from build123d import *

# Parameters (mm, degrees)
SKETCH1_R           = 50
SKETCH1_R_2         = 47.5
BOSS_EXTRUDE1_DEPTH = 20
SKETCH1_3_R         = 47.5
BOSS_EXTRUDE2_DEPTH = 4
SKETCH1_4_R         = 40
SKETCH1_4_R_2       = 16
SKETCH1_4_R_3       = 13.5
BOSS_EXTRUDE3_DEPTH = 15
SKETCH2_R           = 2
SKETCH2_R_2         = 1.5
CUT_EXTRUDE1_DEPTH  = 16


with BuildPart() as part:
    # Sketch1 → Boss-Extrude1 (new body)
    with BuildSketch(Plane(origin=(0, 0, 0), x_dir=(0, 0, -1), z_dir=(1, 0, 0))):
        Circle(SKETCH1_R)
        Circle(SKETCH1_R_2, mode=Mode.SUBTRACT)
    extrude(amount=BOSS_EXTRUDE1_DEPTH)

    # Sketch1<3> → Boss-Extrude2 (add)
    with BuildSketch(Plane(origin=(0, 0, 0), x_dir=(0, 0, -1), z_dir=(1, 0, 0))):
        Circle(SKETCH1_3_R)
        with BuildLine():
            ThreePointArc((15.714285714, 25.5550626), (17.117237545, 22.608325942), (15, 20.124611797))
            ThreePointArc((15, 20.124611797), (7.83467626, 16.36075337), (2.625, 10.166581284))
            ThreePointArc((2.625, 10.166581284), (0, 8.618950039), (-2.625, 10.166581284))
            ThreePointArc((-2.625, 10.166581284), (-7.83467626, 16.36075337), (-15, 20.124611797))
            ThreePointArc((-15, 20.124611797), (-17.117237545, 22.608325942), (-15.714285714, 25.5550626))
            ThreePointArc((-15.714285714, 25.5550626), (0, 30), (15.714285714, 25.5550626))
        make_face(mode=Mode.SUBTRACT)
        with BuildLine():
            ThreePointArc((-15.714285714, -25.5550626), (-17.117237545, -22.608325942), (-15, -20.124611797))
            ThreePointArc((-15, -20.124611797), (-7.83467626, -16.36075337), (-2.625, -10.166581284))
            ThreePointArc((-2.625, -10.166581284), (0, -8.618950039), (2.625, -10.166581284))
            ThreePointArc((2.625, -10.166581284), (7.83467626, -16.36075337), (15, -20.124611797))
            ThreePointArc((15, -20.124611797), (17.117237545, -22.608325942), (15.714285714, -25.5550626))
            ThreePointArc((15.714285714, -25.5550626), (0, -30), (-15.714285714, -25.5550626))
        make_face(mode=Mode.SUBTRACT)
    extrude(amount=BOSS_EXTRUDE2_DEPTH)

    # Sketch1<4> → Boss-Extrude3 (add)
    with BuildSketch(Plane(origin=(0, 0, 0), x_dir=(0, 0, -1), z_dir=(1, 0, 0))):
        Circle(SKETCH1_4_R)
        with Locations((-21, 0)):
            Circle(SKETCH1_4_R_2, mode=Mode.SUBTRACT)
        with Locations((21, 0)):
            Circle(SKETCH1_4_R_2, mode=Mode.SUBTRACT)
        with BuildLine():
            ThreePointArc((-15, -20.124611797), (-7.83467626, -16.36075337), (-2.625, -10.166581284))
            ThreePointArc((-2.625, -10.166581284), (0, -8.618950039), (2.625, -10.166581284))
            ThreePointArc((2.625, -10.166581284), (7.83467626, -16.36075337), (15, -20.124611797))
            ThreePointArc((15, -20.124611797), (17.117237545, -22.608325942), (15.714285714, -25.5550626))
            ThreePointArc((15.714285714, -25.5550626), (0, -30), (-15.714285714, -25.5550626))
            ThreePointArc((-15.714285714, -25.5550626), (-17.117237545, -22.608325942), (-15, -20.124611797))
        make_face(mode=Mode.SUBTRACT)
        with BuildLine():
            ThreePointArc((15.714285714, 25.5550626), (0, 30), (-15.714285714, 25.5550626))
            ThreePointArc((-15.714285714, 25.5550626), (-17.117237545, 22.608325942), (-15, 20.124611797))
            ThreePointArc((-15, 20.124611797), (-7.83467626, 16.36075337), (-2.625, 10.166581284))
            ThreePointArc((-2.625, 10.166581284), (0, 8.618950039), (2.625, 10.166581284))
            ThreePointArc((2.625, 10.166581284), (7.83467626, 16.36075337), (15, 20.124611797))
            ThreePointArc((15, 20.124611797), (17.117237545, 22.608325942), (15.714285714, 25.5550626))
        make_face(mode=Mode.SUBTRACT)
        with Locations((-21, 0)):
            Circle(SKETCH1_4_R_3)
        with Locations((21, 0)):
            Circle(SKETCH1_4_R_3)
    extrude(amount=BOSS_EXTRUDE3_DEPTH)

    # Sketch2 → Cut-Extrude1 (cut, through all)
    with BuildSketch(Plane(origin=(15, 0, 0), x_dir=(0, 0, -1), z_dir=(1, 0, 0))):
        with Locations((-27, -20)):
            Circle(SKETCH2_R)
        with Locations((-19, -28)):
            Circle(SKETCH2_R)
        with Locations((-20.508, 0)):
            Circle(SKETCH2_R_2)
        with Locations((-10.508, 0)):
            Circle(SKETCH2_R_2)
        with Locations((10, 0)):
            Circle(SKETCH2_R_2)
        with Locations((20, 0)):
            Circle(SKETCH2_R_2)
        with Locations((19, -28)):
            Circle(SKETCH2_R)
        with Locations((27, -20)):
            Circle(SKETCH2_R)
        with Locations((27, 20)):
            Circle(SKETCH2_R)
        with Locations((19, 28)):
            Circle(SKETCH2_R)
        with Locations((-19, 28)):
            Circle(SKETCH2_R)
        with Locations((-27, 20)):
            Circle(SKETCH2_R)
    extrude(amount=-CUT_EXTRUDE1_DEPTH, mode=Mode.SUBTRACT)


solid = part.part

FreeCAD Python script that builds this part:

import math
import FreeCAD as App
import Part
import Sketcher
from FreeCAD import Vector
Q = App.Units.Quantity

doc = App.newDocument("Part")
params = doc.addObject("Spreadsheet::Sheet", "Params")
for row, (alias, value) in enumerate([
    ("sketch1_diameter", "100 mm"),
    ("sketch1_diameter2", "95 mm"),
    ("pad1_length", "20 mm"),
    ("sketch2_diameter", "95 mm"),
    ("sketch2_radius", "30 mm"),
    ("sketch2_radius2", "3 mm"),
    ("sketch2_radius3", "21 mm"),
    ("pad2_length", "4 mm"),
    ("sketch3_diameter", "80 mm"),
    ("sketch3_diameter2", "32 mm"),
    ("sketch3_diameter3", "27 mm"),
    ("sketch3_radius", "3 mm"),
    ("sketch3_radius2", "21 mm"),
    ("pad3_length", "15 mm"),
    ("sketch4_diameter", "4 mm"),
    ("sketch4_diameter2", "3 mm"),
], start=1):
    params.set(f"A{row}", alias)
    params.set(f"B{row}", "=" + value)
    params.setAlias(f"B{row}", alias)

body = doc.addObject("PartDesign::Body", "Body")

# Sketch on YZ plane
sketch1 = body.newObject("Sketcher::SketchObject", "Sketch")
sketch1.AttachmentSupport = (doc.getObject("YZ_Plane"), [""])
sketch1.MapMode = "FlatFace"
sketch1.addGeometry([
    Part.Circle(Vector(0, 0, 0), Vector(0, 0, 1), 50),
    Part.Circle(Vector(0, 0, 0), Vector(0, 0, 1), 47.5),
], False)
sketch1.addConstraint([
    Sketcher.Constraint("Coincident", 0, 3, -1, 1),
    Sketcher.Constraint("Coincident", 1, 3, -1, 1),
    Sketcher.Constraint("Diameter", 0, Q("100 mm")),
    Sketcher.Constraint("Diameter", 1, Q("95 mm")),
])
sketch1.setExpression("Constraints[2]", "Params.sketch1_diameter")
sketch1.setExpression("Constraints[3]", "Params.sketch1_diameter2")
pad1 = body.newObject("PartDesign::Pad", "Pad")
pad1.Profile = sketch1
pad1.setExpression("Length", "Params.pad1_length")

# Sketch on YZ plane
sketch2 = body.newObject("Sketcher::SketchObject", "Sketch001")
sketch2.AttachmentSupport = (doc.getObject("YZ_Plane"), [""])
sketch2.MapMode = "FlatFace"
sketch2.addGeometry([
    Part.Circle(Vector(0, 0, 0), Vector(0, 0, 1), 47.5),  # 0
    Part.ArcOfCircle(Part.Circle(Vector(0, 0, 0), Vector(0, 0, 1), 30), math.radians(148.411864), math.radians(211.588136)),  # 1
    Part.ArcOfCircle(Part.Circle(Vector(-22.999556, 14.142857, 0), Vector(0, 0, 1), 3), math.radians(16.60155), math.radians(148.411865)),  # 2
    Part.ArcOfCircle(Part.Circle(Vector(0, 21, 0), Vector(0, 0, 1), 21), math.radians(-163.39845), math.radians(-118.955024)),  # 3
    Part.ArcOfCircle(Part.Circle(Vector(-11.61895, 0, 0), Vector(0, 0, 1), 3), math.radians(-61.044976), math.radians(61.044976)),  # 4
    Part.ArcOfCircle(Part.Circle(Vector(0, -21, 0), Vector(0, 0, 1), 21), math.radians(118.955024), math.radians(163.39845)),  # 5
    Part.ArcOfCircle(Part.Circle(Vector(-22.999556, -14.142857, 0), Vector(0, 0, 1), 3), math.radians(-148.411865), math.radians(-16.60155)),  # 6
    Part.ArcOfCircle(Part.Circle(Vector(0, 0, 0), Vector(0, 0, 1), 30), math.radians(-31.588136), math.radians(31.588136)),  # 7
    Part.ArcOfCircle(Part.Circle(Vector(22.999556, -14.142857, 0), Vector(0, 0, 1), 3), math.radians(-163.39845), math.radians(-31.588135)),  # 8
    Part.ArcOfCircle(Part.Circle(Vector(0, -21, 0), Vector(0, 0, 1), 21), math.radians(16.60155), math.radians(61.044976)),  # 9
    Part.ArcOfCircle(Part.Circle(Vector(11.61895, 0, 0), Vector(0, 0, 1), 3), math.radians(118.955024), math.radians(241.044976)),  # 10
    Part.ArcOfCircle(Part.Circle(Vector(0, 21, 0), Vector(0, 0, 1), 21), math.radians(-61.044976), math.radians(-16.60155)),  # 11
    Part.ArcOfCircle(Part.Circle(Vector(22.999556, 14.142857, 0), Vector(0, 0, 1), 3), math.radians(31.588135), math.radians(163.39845)),  # 12
], False)
sketch2.addConstraint([
    Sketcher.Constraint("Tangent", 1, 1, 2, 2),
    Sketcher.Constraint("Tangent", 2, 1, 3, 1),
    Sketcher.Constraint("Tangent", 3, 2, 4, 2),
    Sketcher.Constraint("Tangent", 4, 1, 5, 1),
    Sketcher.Constraint("Tangent", 5, 2, 6, 2),
    Sketcher.Constraint("Tangent", 6, 1, 1, 2),
    Sketcher.Constraint("Tangent", 7, 1, 8, 2),
    Sketcher.Constraint("Tangent", 8, 1, 9, 1),
    Sketcher.Constraint("Tangent", 9, 2, 10, 2),
    Sketcher.Constraint("Tangent", 10, 1, 11, 1),
    Sketcher.Constraint("Tangent", 11, 2, 12, 2),
    Sketcher.Constraint("Tangent", 12, 1, 7, 2),
    Sketcher.Constraint("Coincident", 0, 3, -1, 1),
    Sketcher.Constraint("Coincident", 1, 3, -1, 1),
    Sketcher.Constraint("Coincident", 7, 3, -1, 1),
    Sketcher.Constraint("Coincident", 9, 3, 5, 3),
    Sketcher.Constraint("Coincident", 11, 3, 3, 3),
    Sketcher.Constraint("Equal", 2, 4),
    Sketcher.Constraint("Equal", 3, 5),
    Sketcher.Constraint("Equal", 4, 6),
    Sketcher.Constraint("Equal", 1, 7),
    Sketcher.Constraint("Equal", 6, 8),
    Sketcher.Constraint("Equal", 5, 9),
    Sketcher.Constraint("Equal", 8, 10),
    Sketcher.Constraint("Equal", 9, 11),
    Sketcher.Constraint("Equal", 10, 12),
    Sketcher.Constraint("Symmetric", 3, 3, 5, 3, -1, 1),
    Sketcher.Constraint("PointOnObject", 3, 3, -2),
    Sketcher.Constraint("Diameter", 0, Q("95 mm")),
    Sketcher.Constraint("Radius", 1, Q("30 mm")),
    Sketcher.Constraint("Radius", 2, Q("3 mm")),
    Sketcher.Constraint("Radius", 3, Q("21 mm")),
    Sketcher.Constraint("DistanceY", -1, 1, 3, 3, Q("21 mm")),
])
sketch2.setExpression("Constraints[28]", "Params.sketch2_diameter")
sketch2.setExpression("Constraints[29]", "Params.sketch2_radius")
sketch2.setExpression("Constraints[30]", "Params.sketch2_radius2")
sketch2.setExpression("Constraints[31]", "Params.sketch2_radius3")
pad2 = body.newObject("PartDesign::Pad", "Pad001")
pad2.Profile = sketch2
pad2.setExpression("Length", "Params.pad2_length")

# Sketch on YZ plane
sketch3 = body.newObject("Sketcher::SketchObject", "Sketch002")
sketch3.AttachmentSupport = (doc.getObject("YZ_Plane"), [""])
sketch3.MapMode = "FlatFace"
sketch3.addGeometry([
    Part.Circle(Vector(0, 0, 0), Vector(0, 0, 1), 40),  # 0
    Part.ArcOfCircle(Part.Circle(Vector(-22.999556, 14.142857, 0), Vector(0, 0, 1), 3), math.radians(16.60155), math.radians(148.411865)),  # 1
    Part.ArcOfCircle(Part.Circle(Vector(0, 21, 0), Vector(0, 0, 1), 21), math.radians(-163.39845), math.radians(-118.955024)),  # 2
    Part.ArcOfCircle(Part.Circle(Vector(-11.61895, 0, 0), Vector(0, 0, 1), 3), math.radians(-61.044976), math.radians(61.044976)),  # 3
    Part.ArcOfCircle(Part.Circle(Vector(0, -21, 0), Vector(0, 0, 1), 21), math.radians(118.955024), math.radians(163.39845)),  # 4
    Part.ArcOfCircle(Part.Circle(Vector(-22.999556, -14.142857, 0), Vector(0, 0, 1), 3), math.radians(-148.411865), math.radians(-16.60155)),  # 5
    Part.ArcOfCircle(Part.Circle(Vector(0, 0, 0), Vector(0, 0, 1), 30), math.radians(148.411864), math.radians(211.588136)),  # 6
    Part.Circle(Vector(0, 21, 0), Vector(0, 0, 1), 16),  # 7
    Part.Circle(Vector(0, -21, 0), Vector(0, 0, 1), 16),  # 8
    Part.ArcOfCircle(Part.Circle(Vector(0, 0, 0), Vector(0, 0, 1), 30), math.radians(-31.588136), math.radians(31.588136)),  # 9
    Part.ArcOfCircle(Part.Circle(Vector(22.999556, -14.142857, 0), Vector(0, 0, 1), 3), math.radians(-163.39845), math.radians(-31.588135)),  # 10
    Part.ArcOfCircle(Part.Circle(Vector(0, -21, 0), Vector(0, 0, 1), 21), math.radians(16.60155), math.radians(61.044976)),  # 11
    Part.ArcOfCircle(Part.Circle(Vector(11.61895, 0, 0), Vector(0, 0, 1), 3), math.radians(118.955024), math.radians(241.044976)),  # 12
    Part.ArcOfCircle(Part.Circle(Vector(0, 21, 0), Vector(0, 0, 1), 21), math.radians(-61.044976), math.radians(-16.60155)),  # 13
    Part.ArcOfCircle(Part.Circle(Vector(22.999556, 14.142857, 0), Vector(0, 0, 1), 3), math.radians(31.588135), math.radians(163.39845)),  # 14
    Part.Circle(Vector(0, 21, 0), Vector(0, 0, 1), 13.5),  # 15
    Part.Circle(Vector(0, -21, 0), Vector(0, 0, 1), 13.5),  # 16
], False)
sketch3.addConstraint([
    Sketcher.Constraint("Tangent", 1, 1, 2, 1),
    Sketcher.Constraint("Tangent", 2, 2, 3, 2),
    Sketcher.Constraint("Tangent", 3, 1, 4, 1),
    Sketcher.Constraint("Tangent", 4, 2, 5, 2),
    Sketcher.Constraint("Tangent", 5, 1, 6, 2),
    Sketcher.Constraint("Tangent", 6, 1, 1, 2),
    Sketcher.Constraint("Tangent", 9, 1, 10, 2),
    Sketcher.Constraint("Tangent", 10, 1, 11, 1),
    Sketcher.Constraint("Tangent", 11, 2, 12, 2),
    Sketcher.Constraint("Tangent", 12, 1, 13, 1),
    Sketcher.Constraint("Tangent", 13, 2, 14, 2),
    Sketcher.Constraint("Tangent", 14, 1, 9, 2),
    Sketcher.Constraint("Coincident", 0, 3, -1, 1),
    Sketcher.Constraint("Coincident", 6, 3, -1, 1),
    Sketcher.Constraint("Coincident", 9, 3, -1, 1),
    Sketcher.Constraint("Coincident", 7, 3, 2, 3),
    Sketcher.Constraint("Coincident", 8, 3, 4, 3),
    Sketcher.Constraint("Coincident", 11, 3, 4, 3),
    Sketcher.Constraint("Coincident", 13, 3, 2, 3),
    Sketcher.Constraint("Coincident", 15, 3, 2, 3),
    Sketcher.Constraint("Coincident", 16, 3, 4, 3),
    Sketcher.Constraint("Equal", 1, 3),
    Sketcher.Constraint("Equal", 2, 4),
    Sketcher.Constraint("Equal", 3, 5),
    Sketcher.Constraint("Equal", 7, 8),
    Sketcher.Constraint("Equal", 6, 9),
    Sketcher.Constraint("Equal", 5, 10),
    Sketcher.Constraint("Equal", 4, 11),
    Sketcher.Constraint("Equal", 10, 12),
    Sketcher.Constraint("Equal", 11, 13),
    Sketcher.Constraint("Equal", 12, 14),
    Sketcher.Constraint("Equal", 15, 16),
    Sketcher.Constraint("Symmetric", 2, 3, 4, 3, -1, 1),
    Sketcher.Constraint("PointOnObject", 2, 3, -2),
    Sketcher.Constraint("Diameter", 0, Q("80 mm")),
    Sketcher.Constraint("Diameter", 7, Q("32 mm")),
    Sketcher.Constraint("Diameter", 15, Q("27 mm")),
    Sketcher.Constraint("Radius", 1, Q("3 mm")),
    Sketcher.Constraint("Radius", 2, Q("21 mm")),
    Sketcher.Constraint("Radius", 6, Q("30 mm")),
    Sketcher.Constraint("DistanceY", -1, 1, 2, 3, Q("21 mm")),
])
sketch3.setExpression("Constraints[34]", "Params.sketch3_diameter")
sketch3.setExpression("Constraints[35]", "Params.sketch3_diameter2")
sketch3.setExpression("Constraints[36]", "Params.sketch3_diameter3")
sketch3.setExpression("Constraints[37]", "Params.sketch3_radius")
sketch3.setExpression("Constraints[38]", "Params.sketch3_radius2")
pad3 = body.newObject("PartDesign::Pad", "Pad002")
pad3.Profile = sketch3
pad3.setExpression("Length", "Params.pad3_length")

# Sketch on YZ plane
sketch4 = body.newObject("Sketcher::SketchObject", "Sketch003")
sketch4.AttachmentSupport = (doc.getObject("YZ_Plane"), [""])
sketch4.MapMode = "FlatFace"
sketch4.AttachmentOffset = App.Placement(Vector(0, 0, 15), App.Rotation())
sketch4.addGeometry([
    Part.Circle(Vector(-20, 27, 0), Vector(0, 0, 1), 2),  # 0
    Part.Circle(Vector(-28, 19, 0), Vector(0, 0, 1), 2),  # 1
    Part.Circle(Vector(0, 20.508, 0), Vector(0, 0, 1), 1.5),  # 2
    Part.Circle(Vector(0, 10.508, 0), Vector(0, 0, 1), 1.5),  # 3
    Part.Circle(Vector(0, -10, 0), Vector(0, 0, 1), 1.5),  # 4
    Part.Circle(Vector(0, -20, 0), Vector(0, 0, 1), 1.5),  # 5
    Part.Circle(Vector(-28, -19, 0), Vector(0, 0, 1), 2),  # 6
    Part.Circle(Vector(-20, -27, 0), Vector(0, 0, 1), 2),  # 7
    Part.Circle(Vector(20, -27, 0), Vector(0, 0, 1), 2),  # 8
    Part.Circle(Vector(28, -19, 0), Vector(0, 0, 1), 2),  # 9
    Part.Circle(Vector(28, 19, 0), Vector(0, 0, 1), 2),  # 10
    Part.Circle(Vector(20, 27, 0), Vector(0, 0, 1), 2),  # 11
], False)
sketch4.addConstraint([
    Sketcher.Constraint("Equal", 0, 1),
    Sketcher.Constraint("Equal", 2, 3),
    Sketcher.Constraint("Equal", 3, 4),
    Sketcher.Constraint("Equal", 4, 5),
    Sketcher.Constraint("Equal", 1, 6),
    Sketcher.Constraint("Equal", 6, 7),
    Sketcher.Constraint("Equal", 7, 8),
    Sketcher.Constraint("Equal", 8, 9),
    Sketcher.Constraint("Equal", 9, 10),
    Sketcher.Constraint("Equal", 10, 11),
    Sketcher.Constraint("Symmetric", 0, 3, 8, 3, -1, 1),
    Sketcher.Constraint("Symmetric", 1, 3, 9, 3, -1, 1),
    Sketcher.Constraint("Symmetric", 6, 3, 10, 3, -1, 1),
    Sketcher.Constraint("Symmetric", 7, 3, 11, 3, -1, 1),
    Sketcher.Constraint("Symmetric", 7, 3, 8, 3, -2),
    Sketcher.Constraint("Symmetric", 6, 3, 9, 3, -2),
    Sketcher.Constraint("PointOnObject", 2, 3, -2),
    Sketcher.Constraint("PointOnObject", 3, 3, -2),
    Sketcher.Constraint("PointOnObject", 4, 3, -2),
    Sketcher.Constraint("PointOnObject", 5, 3, -2),
    Sketcher.Constraint("Diameter", 0, Q("4 mm")),
    Sketcher.Constraint("Diameter", 2, Q("3 mm")),
    Sketcher.Constraint("DistanceX", 0, 3, -1, 1, Q("20 mm")),
    Sketcher.Constraint("DistanceY", -1, 1, 0, 3, Q("27 mm")),
    Sketcher.Constraint("DistanceX", 1, 3, -1, 1, Q("28 mm")),
    Sketcher.Constraint("DistanceY", -1, 1, 1, 3, Q("19 mm")),
    Sketcher.Constraint("DistanceY", 4, 3, -1, 1, Q("10 mm")),
    Sketcher.Constraint("DistanceY", 5, 3, -1, 1, Q("20 mm")),
    Sketcher.Constraint("DistanceY", 3, 3, 2, 3, Q("10 mm")),
    Sketcher.Constraint("DistanceY", -1, 1, 2, 3, Q("20.508 mm")),
])
sketch4.setExpression("Constraints[20]", "Params.sketch4_diameter")
sketch4.setExpression("Constraints[21]", "Params.sketch4_diameter2")
pocket1 = body.newObject("PartDesign::Pocket", "Pocket")
pocket1.Profile = sketch4
pocket1.Type = "ThroughAll"

doc.recompute()
